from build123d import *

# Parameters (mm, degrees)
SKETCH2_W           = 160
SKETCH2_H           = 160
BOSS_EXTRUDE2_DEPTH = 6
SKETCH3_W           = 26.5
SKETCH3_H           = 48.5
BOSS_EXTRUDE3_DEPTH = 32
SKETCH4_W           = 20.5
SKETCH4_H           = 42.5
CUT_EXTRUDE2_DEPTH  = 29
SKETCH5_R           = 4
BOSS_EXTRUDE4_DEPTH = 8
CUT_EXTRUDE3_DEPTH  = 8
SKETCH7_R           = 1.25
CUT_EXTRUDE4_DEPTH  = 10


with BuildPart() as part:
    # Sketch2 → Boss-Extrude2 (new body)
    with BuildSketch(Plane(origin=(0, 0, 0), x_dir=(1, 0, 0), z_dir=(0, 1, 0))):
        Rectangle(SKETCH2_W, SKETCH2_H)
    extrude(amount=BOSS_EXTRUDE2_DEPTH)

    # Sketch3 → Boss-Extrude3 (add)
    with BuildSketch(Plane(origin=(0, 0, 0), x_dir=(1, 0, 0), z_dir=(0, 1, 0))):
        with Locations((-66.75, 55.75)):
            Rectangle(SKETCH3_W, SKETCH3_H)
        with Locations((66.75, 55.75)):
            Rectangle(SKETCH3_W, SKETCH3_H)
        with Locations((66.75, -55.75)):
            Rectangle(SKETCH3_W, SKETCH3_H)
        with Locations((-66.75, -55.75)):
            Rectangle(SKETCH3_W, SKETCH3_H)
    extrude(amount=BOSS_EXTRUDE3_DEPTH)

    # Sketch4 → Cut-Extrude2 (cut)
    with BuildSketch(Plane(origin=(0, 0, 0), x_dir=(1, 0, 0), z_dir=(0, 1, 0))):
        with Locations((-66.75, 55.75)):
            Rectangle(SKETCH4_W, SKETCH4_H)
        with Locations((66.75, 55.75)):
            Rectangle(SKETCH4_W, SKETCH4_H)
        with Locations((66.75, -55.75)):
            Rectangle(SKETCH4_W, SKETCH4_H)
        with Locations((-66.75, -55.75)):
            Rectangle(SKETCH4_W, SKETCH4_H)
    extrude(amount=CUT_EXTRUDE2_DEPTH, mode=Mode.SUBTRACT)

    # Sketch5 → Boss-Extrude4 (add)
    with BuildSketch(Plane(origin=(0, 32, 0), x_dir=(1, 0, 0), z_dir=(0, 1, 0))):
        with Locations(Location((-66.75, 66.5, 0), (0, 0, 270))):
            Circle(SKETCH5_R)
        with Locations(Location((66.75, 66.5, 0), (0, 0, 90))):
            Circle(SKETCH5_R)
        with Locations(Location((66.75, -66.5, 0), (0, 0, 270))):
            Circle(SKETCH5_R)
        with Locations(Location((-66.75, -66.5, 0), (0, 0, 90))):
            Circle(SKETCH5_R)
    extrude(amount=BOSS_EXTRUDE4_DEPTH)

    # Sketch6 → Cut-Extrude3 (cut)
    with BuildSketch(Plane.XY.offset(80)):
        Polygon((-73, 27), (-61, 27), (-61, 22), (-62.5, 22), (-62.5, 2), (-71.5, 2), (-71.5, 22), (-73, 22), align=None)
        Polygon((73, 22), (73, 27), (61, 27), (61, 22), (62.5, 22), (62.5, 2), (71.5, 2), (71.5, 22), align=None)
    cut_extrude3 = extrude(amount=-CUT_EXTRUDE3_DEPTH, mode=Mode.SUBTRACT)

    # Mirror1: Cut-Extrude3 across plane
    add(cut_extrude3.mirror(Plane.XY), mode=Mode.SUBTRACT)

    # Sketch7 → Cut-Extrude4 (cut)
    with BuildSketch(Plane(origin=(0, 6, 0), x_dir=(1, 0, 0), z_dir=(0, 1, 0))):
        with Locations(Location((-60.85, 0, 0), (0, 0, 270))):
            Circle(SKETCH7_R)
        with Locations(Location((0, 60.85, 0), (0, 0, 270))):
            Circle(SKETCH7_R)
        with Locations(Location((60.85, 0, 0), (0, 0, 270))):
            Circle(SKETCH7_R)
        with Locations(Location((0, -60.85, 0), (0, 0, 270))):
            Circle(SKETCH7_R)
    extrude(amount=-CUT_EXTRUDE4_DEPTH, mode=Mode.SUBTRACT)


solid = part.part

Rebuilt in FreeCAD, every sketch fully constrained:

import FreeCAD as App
import Part
import Sketcher


def add_polygon(sketch, points):
    """Adds a closed chain of lines whose ends are joined by coincident constraints."""
    first, n = sketch.GeometryCount, len(points)
    for a, b in zip(points, points[1:] + points[:1]):
        sketch.addGeometry(Part.LineSegment(App.Vector(*a, 0), App.Vector(*b, 0)), False)
    for i in range(n):
        sketch.addConstraint(Sketcher.Constraint("Coincident", first + i, 2, first + (i + 1) % n, 1))

doc = App.newDocument("Part")
body = doc.addObject("PartDesign::Body", "Body")

sketch1 = body.newObject("Sketcher::SketchObject", "Sketch")
sketch1.AttachmentSupport = (doc.getObject("XZ_Plane"), [""])
sketch1.MapMode = "FlatFace"
add_polygon(sketch1, [(-80, -80), (-80, 80), (80, 80), (80, -80)])
sketch1.addConstraint([
    Sketcher.Constraint("Vertical", 0),
    Sketcher.Constraint("Horizontal", 1),
    Sketcher.Constraint("Vertical", 2),
    Sketcher.Constraint("Horizontal", 3),
    Sketcher.Constraint("Symmetric", 0, 2, 2, 2, -1, 1),
    Sketcher.Constraint("Equal", 3, 0),
    Sketcher.Constraint("DistanceX", 1, 1, 1, 2, 160.0),
])
pad1 = body.newObject("PartDesign::Pad", "Pad")
pad1.Profile = sketch1
pad1.Length = 6
pad1.Reversed = True

sketch2 = body.newObject("Sketcher::SketchObject", "Sketch001")
sketch2.AttachmentSupport = (doc.getObject("XZ_Plane"), [""])
sketch2.MapMode = "FlatFace"
add_polygon(sketch2, [(-80, -80), (-80, -32), (-54, -32), (-54, -80)])
add_polygon(sketch2, [(54, -80), (54, -32), (80, -32), (80, -80)])
add_polygon(sketch2, [(54, 32), (54, 80), (80, 80), (80, 32)])
add_polygon(sketch2, [(-80, 32), (-80, 80), (-54, 80), (-54, 32)])
sketch2.addConstraint([
    Sketcher.Constraint("Vertical", 0),
    Sketcher.Constraint("Horizontal", 1),
    Sketcher.Constraint("Vertical", 2),
    Sketcher.Constraint("Horizontal", 3),
    Sketcher.Constraint("Vertical", 4),
    Sketcher.Constraint("Horizontal", 5),
    Sketcher.Constraint("Vertical", 6),
    Sketcher.Constraint("Horizontal", 7),
    Sketcher.Constraint("Vertical", 8),
    Sketcher.Constraint("Horizontal", 9),
    Sketcher.Constraint("Vertical", 10),
    Sketcher.Constraint("Horizontal", 11),
    Sketcher.Constraint("Vertical", 12),
    Sketcher.Constraint("Horizontal", 13),
    Sketcher.Constraint("Vertical", 14),
    Sketcher.Constraint("Horizontal", 15),
    Sketcher.Constraint("Symmetric", 2, 2, 8, 2, -1, 1),
    Sketcher.Constraint("Symmetric", 0, 2, 10, 2, -1, 1),
    Sketcher.Constraint("Symmetric", 6, 2, 12, 2, -1, 1),
    Sketcher.Constraint("Symmetric", 4, 2, 14, 2, -1, 1),
    Sketcher.Constraint("Symmetric", 1, 2, 4, 2, -2),
    Sketcher.Constraint("Symmetric", 3, 2, 6, 2, -2),
    Sketcher.Constraint("DistanceX", 1, 1, 1, 2, 26.5),
    Sketcher.Constraint("DistanceY", 0, 1, 0, 2, 48.5),
    Sketcher.Constraint("DistanceX", 0, 2, -1, 1, 80.0),
    Sketcher.Constraint("DistanceY", 2, 2, -1, 1, 80.0),
])
pad2 = body.newObject("PartDesign::Pad", "Pad001")
pad2.Profile = sketch2
pad2.Length = 32
pad2.Reversed = True

sketch3 = body.newObject("Sketcher::SketchObject", "Sketch002")
sketch3.AttachmentSupport = (doc.getObject("XZ_Plane"), [""])
sketch3.MapMode = "FlatFace"
add_polygon(sketch3, [(-77, -77), (-77, -34), (-56, -34), (-56, -77)])
add_polygon(sketch3, [(56, -77), (56, -34), (77, -34), (77, -77)])
add_polygon(sketch3, [(56, 34), (56, 77), (77, 77), (77, 34)])
add_polygon(sketch3, [(-77, 34), (-77, 77), (-56, 77), (-56, 34)])
sketch3.addConstraint([
    Sketcher.Constraint("Vertical", 0),
    Sketcher.Constraint("Horizontal", 1),
    Sketcher.Constraint("Vertical", 2),
    Sketcher.Constraint("Horizontal", 3),
    Sketcher.Constraint("Vertical", 4),
    Sketcher.Constraint("Horizontal", 5),
    Sketcher.Constraint("Vertical", 6),
    Sketcher.Constraint("Horizontal", 7),
    Sketcher.Constraint("Vertical", 8),
    Sketcher.Constraint("Horizontal", 9),
    Sketcher.Constraint("Vertical", 10),
    Sketcher.Constraint("Horizontal", 11),
    Sketcher.Constraint("Vertical", 12),
    Sketcher.Constraint("Horizontal", 13),
    Sketcher.Constraint("Vertical", 14),
    Sketcher.Constraint("Horizontal", 15),
    Sketcher.Constraint("Symmetric", 2, 2, 8, 2, -1, 1),
    Sketcher.Constraint("Symmetric", 0, 2, 10, 2, -1, 1),
    Sketcher.Constraint("Symmetric", 6, 2, 12, 2, -1, 1),
    Sketcher.Constraint("Symmetric", 4, 2, 14, 2, -1, 1),
    Sketcher.Constraint("Symmetric", 1, 2, 4, 2, -2),
    Sketcher.Constraint("Symmetric", 3, 2, 6, 2, -2),
    Sketcher.Constraint("DistanceX", 1, 1, 1, 2, 20.5),
    Sketcher.Constraint("DistanceY", 0, 1, 0, 2, 42.5),
    Sketcher.Constraint("DistanceX", 0, 2, -1, 1, 77.0),
    Sketcher.Constraint("DistanceY", 2, 2, -1, 1, 77.0),
])
pocket1 = body.newObject("PartDesign::Pocket", "Pocket")
pocket1.Profile = sketch3
pocket1.Length = 29

sketch4 = body.newObject("Sketcher::SketchObject", "Sketch003")
sketch4.AttachmentSupport = (doc.getObject("XZ_Plane"), [""])
sketch4.MapMode = "FlatFace"
sketch4.AttachmentOffset = App.Placement(App.Vector(0, 0, -32), App.Rotation())
sketch4.addGeometry([
    Part.Circle(App.Vector(-66.8, -66.5, 0), App.Vector(0, 0, 1), 4),
    Part.Circle(App.Vector(66.8, -66.5, 0), App.Vector(0, 0, 1), 4),
    Part.Circle(App.Vector(66.8, 66.5, 0), App.Vector(0, 0, 1), 4),
    Part.Circle(App.Vector(-66.8, 66.5, 0), App.Vector(0, 0, 1), 4),
], False)
sketch4.addConstraint([
    Sketcher.Constraint("Equal", 0, 1),
    Sketcher.Constraint("Equal", 1, 2),
    Sketcher.Constraint("Equal", 2, 3),
    Sketcher.Constraint("Symmetric", 0, 3, 2, 3, -1, 1),
    Sketcher.Constraint("Symmetric", 1, 3, 3, 3, -1, 1),
    Sketcher.Constraint("Symmetric", 0, 3, 1, 3, -2),
    Sketcher.Constraint("Diameter", 0, 8.0),
    Sketcher.Constraint("DistanceY", 1, 3, 2, 3, 133.0),
    Sketcher.Constraint("DistanceX", 0, 3, 1, 3, 133.5),
])
pad3 = body.newObject("PartDesign::Pad", "Pad002")
pad3.Profile = sketch4
pad3.Length = 8
pad3.Reversed = True

sketch5 = body.newObject("Sketcher::SketchObject", "Sketch004")
sketch5.AttachmentSupport = (doc.getObject("XY_Plane"), [""])
sketch5.MapMode = "FlatFace"
sketch5.AttachmentOffset = App.Placement(App.Vector(0, 0, 80), App.Rotation())
add_polygon(sketch5, [(-61, 27), (-73, 27), (-73, 22), (-71.5, 22), (-71.5, 2), (-62.5, 2), (-62.5, 22), (-61, 22)])
add_polygon(sketch5, [(73, 22), (73, 27), (61, 27), (61, 22), (62.5, 22), (62.5, 2), (71.5, 2), (71.5, 22)])
sketch5.addConstraint([
    Sketcher.Constraint("Horizontal", 0),
    Sketcher.Constraint("Vertical", 1),
    Sketcher.Constraint("Horizontal", 2),
    Sketcher.Constraint("Vertical", 3),
    Sketcher.Constraint("Horizontal", 4),
    Sketcher.Constraint("Vertical", 5),
    Sketcher.Constraint("Horizontal", 6),
    Sketcher.Constraint("Vertical", 7),
    Sketcher.Constraint("Vertical", 8),
    Sketcher.Constraint("Horizontal", 9),
    Sketcher.Constraint("Vertical", 10),
    Sketcher.Constraint("Horizontal", 11),
    Sketcher.Constraint("Vertical", 12),
    Sketcher.Constraint("Horizontal", 13),
    Sketcher.Constraint("Vertical", 14),
    Sketcher.Constraint("Horizontal", 15),
    Sketcher.Constraint("Symmetric", 0, 2, 8, 2, -2),
    Sketcher.Constraint("Symmetric", 6, 2, 10, 2, -2),
    Sketcher.Constraint("Symmetric", 4, 2, 12, 2, -2),
    Sketcher.Constraint("Symmetric", 2, 2, 14, 2, -2),
    Sketcher.Constraint("Horizontal", 2, 2, 5, 2),
    Sketcher.Constraint("Equal", 2, 6),
    Sketcher.Constraint("DistanceX", 0, 2, 0, 1, 12.0),
    Sketcher.Constraint("DistanceX", 4, 1, 4, 2, 9.0),
    Sketcher.Constraint("DistanceY", 1, 2, 1, 1, 5.0),
    Sketcher.Constraint("DistanceY", 3, 2, 3, 1, 20.0),
    Sketcher.Constraint("DistanceX", 0, 2, -1, 1, 73.0),
    Sketcher.Constraint("DistanceY", -1, 1, 0, 2, 27.0),
])
pocket2 = body.newObject("PartDesign::Pocket", "Pocket001")
pocket2.Profile = sketch5
pocket2.Length = 8
doc.recompute()

mirrored = body.newObject("PartDesign::Mirrored", "Mirrored")
mirrored.Originals = [pocket2]
mirrored.MirrorPlane = (doc.getObject("XY_Plane"), [""])
body.Tip = mirrored

sketch6 = body.newObject("Sketcher::SketchObject", "Sketch005")
sketch6.AttachmentSupport = (doc.getObject("XZ_Plane"), [""])
sketch6.MapMode = "FlatFace"
sketch6.AttachmentOffset = App.Placement(App.Vector(0, 0, -6), App.Rotation())
sketch6.addGeometry([
    Part.Circle(App.Vector(-60.9, 0, 0), App.Vector(0, 0, 1), 1.2),
    Part.Circle(App.Vector(0, -60.9, 0), App.Vector(0, 0, 1), 1.2),
    Part.Circle(App.Vector(60.9, 0, 0), App.Vector(0, 0, 1), 1.2),
    Part.Circle(App.Vector(0, 60.9, 0), App.Vector(0, 0, 1), 1.2),
], False)
sketch6.addConstraint([
    Sketcher.Constraint("Equal", 0, 1),
    Sketcher.Constraint("Equal", 1, 2),
    Sketcher.Constraint("Equal", 2, 3),
    Sketcher.Constraint("Symmetric", 0, 3, 2, 3, -1, 1),
    Sketcher.Constraint("Symmetric", 1, 3, 3, 3, -1, 1),
    Sketcher.Constraint("PointOnObject", 0, 3, -1),
    Sketcher.Constraint("PointOnObject", 1, 3, -2),
    Sketcher.Constraint("Diameter", 0, 2.5),
    Sketcher.Constraint("DistanceX", 0, 3, 2, 3, 121.7),
    Sketcher.Constraint("DistanceY", 1, 3, 3, 3, 121.7),
])
pocket3 = body.newObject("PartDesign::Pocket", "Pocket002")
pocket3.Profile = sketch6
pocket3.Length = 10
pocket3.Reversed = True

doc.recompute()
